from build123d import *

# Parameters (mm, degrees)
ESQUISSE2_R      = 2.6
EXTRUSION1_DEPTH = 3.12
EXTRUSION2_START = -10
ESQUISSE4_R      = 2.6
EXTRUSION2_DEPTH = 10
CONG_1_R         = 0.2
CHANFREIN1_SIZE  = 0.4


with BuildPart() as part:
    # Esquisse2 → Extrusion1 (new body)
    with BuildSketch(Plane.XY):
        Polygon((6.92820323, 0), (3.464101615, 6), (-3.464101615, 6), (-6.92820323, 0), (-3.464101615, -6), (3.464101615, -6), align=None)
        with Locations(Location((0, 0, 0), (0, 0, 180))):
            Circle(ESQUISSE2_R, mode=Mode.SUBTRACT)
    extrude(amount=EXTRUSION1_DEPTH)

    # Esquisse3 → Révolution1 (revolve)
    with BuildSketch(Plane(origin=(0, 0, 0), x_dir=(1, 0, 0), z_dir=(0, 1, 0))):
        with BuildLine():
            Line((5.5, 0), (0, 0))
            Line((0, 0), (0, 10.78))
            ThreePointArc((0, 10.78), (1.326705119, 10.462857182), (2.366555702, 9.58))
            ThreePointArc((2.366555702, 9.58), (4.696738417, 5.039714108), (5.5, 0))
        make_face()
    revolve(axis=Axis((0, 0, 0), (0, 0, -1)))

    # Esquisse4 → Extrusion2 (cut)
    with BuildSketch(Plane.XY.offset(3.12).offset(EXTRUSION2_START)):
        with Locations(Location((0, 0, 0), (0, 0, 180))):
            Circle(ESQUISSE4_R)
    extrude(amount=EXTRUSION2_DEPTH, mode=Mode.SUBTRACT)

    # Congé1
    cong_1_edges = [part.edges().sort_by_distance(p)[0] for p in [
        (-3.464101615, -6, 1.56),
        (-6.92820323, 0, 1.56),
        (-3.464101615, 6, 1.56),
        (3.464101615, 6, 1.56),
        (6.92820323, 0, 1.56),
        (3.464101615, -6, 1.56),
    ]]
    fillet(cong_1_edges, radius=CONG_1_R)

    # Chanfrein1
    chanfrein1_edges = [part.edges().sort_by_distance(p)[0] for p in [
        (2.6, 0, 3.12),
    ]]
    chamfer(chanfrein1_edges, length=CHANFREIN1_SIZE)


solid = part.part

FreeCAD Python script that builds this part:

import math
import FreeCAD as App
import Part
import Sketcher
Q = App.Units.Quantity


def edges_at(feature, points):
    """Names of the edges that pass closest to the given points."""
    edges = feature.Shape.Edges
    near = lambda p: min(range(len(edges)), key=lambda i: edges[i].distToShape(Part.Vertex(*p))[0])
    return sorted({f"Edge{near(p) + 1}" for p in points})


def add_polygon(sketch, points):
    """Adds a closed chain of lines whose ends are joined by coincident constraints."""
    first, n = sketch.GeometryCount, len(points)
    for a, b in zip(points, points[1:] + points[:1]):
        sketch.addGeometry(Part.LineSegment(App.Vector(*a, 0), App.Vector(*b, 0)), False)
    for i in range(n):
        sketch.addConstraint(Sketcher.Constraint("Coincident", first + i, 2, first + (i + 1) % n, 1))

doc = App.newDocument("Part")
params = doc.addObject("Spreadsheet::Sheet", "Params")
for row, (alias, value) in enumerate([
    ("sketch1_diameter", "5.2 mm"),
    ("pad1_length", "3.12 mm"),
    ("sketch2_width", "5.5 mm"),
    ("sketch2_height", "10.78 mm"),
    ("revolution_angle", "360 deg"),
    ("sketch3_diameter", "5.2 mm"),
    ("pocket1_length", "10 mm"),
    ("fillet_radius", "0.2 mm"),
    ("chamfer_size", "0.4 mm"),
], start=1):
    params.set(f"A{row}", alias)
    params.set(f"B{row}", "=" + value)
    params.setAlias(f"B{row}", alias)

body = doc.addObject("PartDesign::Body", "Body")

sketch1 = body.newObject("Sketcher::SketchObject", "Sketch")
sketch1.AttachmentSupport = (doc.getObject("XY_Plane"), [""])
sketch1.MapMode = "FlatFace"
add_polygon(sketch1, [(6.9, 0), (3.5, 6), (-3.5, 6), (-6.9, 0), (-3.5, -6), (3.5, -6)])
sketch1.addGeometry(Part.Circle(App.Vector(0, 0, 0), App.Vector(0, 0, 1), 2.6), False)
sketch1.addConstraint([
    Sketcher.Constraint("Horizontal", 1),
    Sketcher.Constraint("Horizontal", 4),
    Sketcher.Constraint("Coincident", 6, 3, -1, 1),
    Sketcher.Constraint("Symmetric", 0, 2, 3, 2, -1, 1),
    Sketcher.Constraint("Symmetric", 2, 2, 5, 2, -1, 1),
    Sketcher.Constraint("PointOnObject", 2, 2, -1),
    Sketcher.Constraint("Parallel", 2, 5),
    Sketcher.Constraint("Vertical", 1, 2, 3, 2),
    Sketcher.Constraint("Diameter", 6, 5.2),
    Sketcher.Constraint("Angle", 0, Q("120 deg")),
    Sketcher.Constraint("DistanceY", -1, 1, 0, 2, 6.0),
    Sketcher.Constraint("DistanceX", -1, 1, 0, 2, 3.464102),
])
sketch1.setExpression("Constraints[14]", "Params.sketch1_diameter")
pad1 = body.newObject("PartDesign::Pad", "Pad")
pad1.Profile = sketch1
pad1.setExpression("Length", "Params.pad1_length")

sketch2 = body.newObject("Sketcher::SketchObject", "Sketch001")
sketch2.AttachmentSupport = (doc.getObject("XZ_Plane"), [""])
sketch2.MapMode = "FlatFace"
sketch2.addGeometry([
    Part.LineSegment(App.Vector(0, 0, 0), App.Vector(5.5, 0, 0)),
    Part.ArcOfCircle(Part.Circle(App.Vector(-10.7, 0, 0), App.Vector(0, 0, 1), 16.2), math.radians(-36), math.radians(0)),
    Part.ArcOfCircle(Part.Circle(App.Vector(0, -7.8, 0), App.Vector(0, 0, 1), 2.9), math.radians(-90), math.radians(-36)),
    Part.LineSegment(App.Vector(0, -10.8, 0), App.Vector(0, 0, 0)),
], False)
sketch2.addConstraint([
    Sketcher.Constraint("Coincident", 0, 2, 1, 2),
    Sketcher.Constraint("Tangent", 1, 1, 2, 2),
    Sketcher.Constraint("Coincident", 2, 1, 3, 1),
    Sketcher.Constraint("Coincident", 3, 2, 0, 1),
    Sketcher.Constraint("Horizontal", 0),
    Sketcher.Constraint("Vertical", 3),
    Sketcher.Constraint("Coincident", 3, 2, -1, 1),
    Sketcher.Constraint("PointOnObject", 1, 3, -1),
    Sketcher.Constraint("PointOnObject", 2, 3, -2),
    Sketcher.Constraint("DistanceX", 0, 1, 0, 2, 5.5),
    Sketcher.Constraint("DistanceY", 3, 1, 3, 2, 10.78),
    Sketcher.Constraint("DistanceY", 2, 1, 1, 1, 1.2),
])
sketch2.setExpression("Constraints[9]", "Params.sketch2_width")
sketch2.setExpression("Constraints[10]", "Params.sketch2_height")
revolution = body.newObject("PartDesign::Revolution", "Revolution")
revolution.Profile = sketch2
revolution.ReferenceAxis = (sketch2, ["V_Axis"])
revolution.setExpression("Angle", "Params.revolution_angle")

sketch3 = body.newObject("Sketcher::SketchObject", "Sketch002")
sketch3.AttachmentSupport = (doc.getObject("XY_Plane"), [""])
sketch3.MapMode = "FlatFace"
sketch3.AttachmentOffset = App.Placement(App.Vector(0, 0, -6.88), App.Rotation())
sketch3.addGeometry(Part.Circle(App.Vector(0, 0, 0), App.Vector(0, 0, 1), 2.6), False)
sketch3.addConstraint([
    Sketcher.Constraint("Coincident", 0, 3, -1, 1),
    Sketcher.Constraint("Diameter", 0, 5.2),
])
sketch3.setExpression("Constraints[1]", "Params.sketch3_diameter")
pocket1 = body.newObject("PartDesign::Pocket", "Pocket")
pocket1.Profile = sketch3
pocket1.setExpression("Length", "Params.pocket1_length")
pocket1.Reversed = True
doc.recompute()

fillet = body.newObject("PartDesign::Fillet", "Fillet")
fillet.Base = (pocket1, edges_at(pocket1, [
    (-3.464, -6, 1.56),
    (-6.928, 0, 1.56),
    (-3.464, 6, 1.56),
    (3.464, 6, 1.56),
    (6.928, 0, 1.56),
    (3.464, -6, 1.56),
]))
fillet.setExpression("Radius", "Params.fillet_radius")
doc.recompute()

chamfer = body.newObject("PartDesign::Chamfer", "Chamfer")
chamfer.Base = (fillet, edges_at(fillet, [(2.6, 0, 3.12)]))
chamfer.setExpression("Size", "Params.chamfer_size")

doc.recompute()
